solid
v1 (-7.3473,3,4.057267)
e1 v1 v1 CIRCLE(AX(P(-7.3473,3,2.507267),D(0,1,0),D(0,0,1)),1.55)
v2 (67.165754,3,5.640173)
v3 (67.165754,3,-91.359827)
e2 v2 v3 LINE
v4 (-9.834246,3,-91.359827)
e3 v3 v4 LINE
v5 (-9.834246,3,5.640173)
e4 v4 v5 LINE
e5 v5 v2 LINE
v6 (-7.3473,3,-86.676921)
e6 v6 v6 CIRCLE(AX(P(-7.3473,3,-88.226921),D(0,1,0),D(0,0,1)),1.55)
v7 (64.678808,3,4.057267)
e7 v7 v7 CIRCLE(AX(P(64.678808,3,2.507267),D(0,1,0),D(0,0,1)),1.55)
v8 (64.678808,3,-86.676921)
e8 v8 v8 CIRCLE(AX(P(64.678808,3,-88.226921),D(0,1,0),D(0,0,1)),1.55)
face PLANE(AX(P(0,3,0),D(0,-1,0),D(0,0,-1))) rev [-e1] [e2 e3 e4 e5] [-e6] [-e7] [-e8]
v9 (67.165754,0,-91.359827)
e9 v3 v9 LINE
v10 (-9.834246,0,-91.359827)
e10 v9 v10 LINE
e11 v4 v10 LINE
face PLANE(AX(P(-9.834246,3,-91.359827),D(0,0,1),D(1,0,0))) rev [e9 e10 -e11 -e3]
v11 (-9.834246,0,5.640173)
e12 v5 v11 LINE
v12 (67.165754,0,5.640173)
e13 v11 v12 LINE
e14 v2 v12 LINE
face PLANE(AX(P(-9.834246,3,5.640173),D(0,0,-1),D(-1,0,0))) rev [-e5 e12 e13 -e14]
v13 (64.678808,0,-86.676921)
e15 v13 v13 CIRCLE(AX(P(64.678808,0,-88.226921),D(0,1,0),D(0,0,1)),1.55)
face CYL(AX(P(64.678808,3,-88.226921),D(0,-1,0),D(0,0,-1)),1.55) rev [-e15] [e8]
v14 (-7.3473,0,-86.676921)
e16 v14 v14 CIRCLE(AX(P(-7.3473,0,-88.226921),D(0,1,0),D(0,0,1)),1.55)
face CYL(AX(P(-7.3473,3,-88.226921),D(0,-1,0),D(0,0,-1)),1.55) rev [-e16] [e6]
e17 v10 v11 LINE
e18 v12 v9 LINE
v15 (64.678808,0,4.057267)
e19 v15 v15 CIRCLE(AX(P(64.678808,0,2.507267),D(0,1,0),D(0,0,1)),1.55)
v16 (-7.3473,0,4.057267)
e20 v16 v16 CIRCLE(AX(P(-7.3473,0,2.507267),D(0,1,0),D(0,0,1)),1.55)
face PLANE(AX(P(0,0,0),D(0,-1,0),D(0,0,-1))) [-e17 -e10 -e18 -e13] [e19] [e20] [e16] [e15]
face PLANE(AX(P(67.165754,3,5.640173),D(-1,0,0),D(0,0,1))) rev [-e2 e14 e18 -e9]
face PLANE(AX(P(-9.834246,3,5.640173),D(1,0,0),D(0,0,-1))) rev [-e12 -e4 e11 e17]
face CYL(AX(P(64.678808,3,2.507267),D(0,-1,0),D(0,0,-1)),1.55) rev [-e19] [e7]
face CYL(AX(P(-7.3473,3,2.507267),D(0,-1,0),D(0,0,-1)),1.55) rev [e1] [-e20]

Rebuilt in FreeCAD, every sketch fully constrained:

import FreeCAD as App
import Part
import Sketcher
Q = App.Units.Quantity


def add_polygon(sketch, points):
    """Adds a closed chain of lines whose ends are joined by coincident constraints."""
    first, n = sketch.GeometryCount, len(points)
    for a, b in zip(points, points[1:] + points[:1]):
        sketch.addGeometry(Part.LineSegment(App.Vector(*a, 0), App.Vector(*b, 0)), False)
    for i in range(n):
        sketch.addConstraint(Sketcher.Constraint("Coincident", first + i, 2, first + (i + 1) % n, 1))

doc = App.newDocument("Part")
body = doc.addObject("PartDesign::Body", "Body")

sketch1 = doc.addObject("Sketcher::SketchObject", "Sketch")
body.addObject(sketch1)
sketch1.AttachmentSupport = (doc.XZ_Plane, [""])
sketch1.MapMode = "FlatFace"
add_polygon(sketch1, [(-9.8, -91.4), (-9.8, 5.6), (67.2, 5.6), (67.2, -91.4)])
sketch1.addGeometry(Part.Circle(App.Vector(-7.3, 2.5, 0), App.Vector(0, 0, 1), 1.6), False)
sketch1.addGeometry(Part.Circle(App.Vector(64.7, 2.5, 0), App.Vector(0, 0, 1), 1.6), False)
sketch1.addGeometry(Part.Circle(App.Vector(-7.3, -88.2, 0), App.Vector(0, 0, 1), 1.6), False)
sketch1.addGeometry(Part.Circle(App.Vector(64.7, -88.2, 0), App.Vector(0, 0, 1), 1.6), False)
sketch1.addConstraint([
    Sketcher.Constraint("Vertical", 0),
    Sketcher.Constraint("Horizontal", 1),
    Sketcher.Constraint("Vertical", 2),
    Sketcher.Constraint("Horizontal", 3),
    Sketcher.Constraint("Equal", 4, 5),
    Sketcher.Constraint("Equal", 5, 6),
    Sketcher.Constraint("Equal", 6, 7),
    Sketcher.Constraint("Horizontal", 4, 3, 5, 3),
    Sketcher.Constraint("Horizontal", 6, 3, 7, 3),
    Sketcher.Constraint("Vertical", 4, 3, 6, 3),
    Sketcher.Constraint("Vertical", 5, 3, 7, 3),
    Sketcher.Constraint("Diameter", 4, Q("3.1 mm")),
    Sketcher.Constraint("DistanceX", 1, 1, 1, 2, Q("77 mm")),
    Sketcher.Constraint("DistanceY", 0, 1, 0, 2, Q("97 mm")),
    Sketcher.Constraint("DistanceX", 4, 3, -1, 1, Q("7.3473 mm")),
    Sketcher.Constraint("DistanceX", -1, 1, 5, 3, Q("64.678808 mm")),
    Sketcher.Constraint("DistanceY", 6, 3, -1, 1, Q("88.226921 mm")),
    Sketcher.Constraint("DistanceY", 6, 3, 4, 3, Q("90.734188 mm")),
    Sketcher.Constraint("DistanceX", 0, 2, -1, 1, Q("9.834246 mm")),
    Sketcher.Constraint("DistanceY", -1, 1, 0, 2, Q("5.640173 mm")),
])
pad1 = doc.addObject("PartDesign::Pad", "Pad")
body.addObject(pad1)
pad1.Profile = sketch1
pad1.Length = 3
pad1.Reversed = True

doc.recompute()
